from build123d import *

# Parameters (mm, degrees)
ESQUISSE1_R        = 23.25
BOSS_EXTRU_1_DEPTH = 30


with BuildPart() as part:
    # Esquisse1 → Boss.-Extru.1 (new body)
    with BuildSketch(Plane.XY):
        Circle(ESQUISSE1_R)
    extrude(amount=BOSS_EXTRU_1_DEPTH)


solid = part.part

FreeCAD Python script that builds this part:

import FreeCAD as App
import Part
import Sketcher
from FreeCAD import Vector
Q = App.Units.Quantity

doc = App.newDocument("Part")
params = doc.addObject("Spreadsheet::Sheet", "Params")
for row, (alias, value) in enumerate([
    ("sketch1_diameter", "46.5 mm"),
    ("pad1_length", "30 mm"),
], start=1):
    params.set(f"A{row}", alias)
    params.set(f"B{row}", "=" + value)
    params.setAlias(f"B{row}", alias)

body = doc.addObject("PartDesign::Body", "Body")

# Sketch on XY plane
sketch1 = body.newObject("Sketcher::SketchObject", "Sketch")
sketch1.AttachmentSupport = (doc.getObject("XY_Plane"), [""])
sketch1.MapMode = "FlatFace"
sketch1.addGeometry(Part.Circle(Vector(0, 0, 0), Vector(0, 0, 1), 23), False)
sketch1.addConstraint(Sketcher.Constraint("Coincident", 0, 3, -1, 1))
sketch1.addConstraint(Sketcher.Constraint("Diameter", 0, Q("46.5 mm")))
sketch1.setExpression("Constraints[1]", "Params.sketch1_diameter")
pad1 = body.newObject("PartDesign::Pad", "Pad")
pad1.Profile = sketch1
pad1.setExpression("Length", "Params.pad1_length")

doc.recompute()
